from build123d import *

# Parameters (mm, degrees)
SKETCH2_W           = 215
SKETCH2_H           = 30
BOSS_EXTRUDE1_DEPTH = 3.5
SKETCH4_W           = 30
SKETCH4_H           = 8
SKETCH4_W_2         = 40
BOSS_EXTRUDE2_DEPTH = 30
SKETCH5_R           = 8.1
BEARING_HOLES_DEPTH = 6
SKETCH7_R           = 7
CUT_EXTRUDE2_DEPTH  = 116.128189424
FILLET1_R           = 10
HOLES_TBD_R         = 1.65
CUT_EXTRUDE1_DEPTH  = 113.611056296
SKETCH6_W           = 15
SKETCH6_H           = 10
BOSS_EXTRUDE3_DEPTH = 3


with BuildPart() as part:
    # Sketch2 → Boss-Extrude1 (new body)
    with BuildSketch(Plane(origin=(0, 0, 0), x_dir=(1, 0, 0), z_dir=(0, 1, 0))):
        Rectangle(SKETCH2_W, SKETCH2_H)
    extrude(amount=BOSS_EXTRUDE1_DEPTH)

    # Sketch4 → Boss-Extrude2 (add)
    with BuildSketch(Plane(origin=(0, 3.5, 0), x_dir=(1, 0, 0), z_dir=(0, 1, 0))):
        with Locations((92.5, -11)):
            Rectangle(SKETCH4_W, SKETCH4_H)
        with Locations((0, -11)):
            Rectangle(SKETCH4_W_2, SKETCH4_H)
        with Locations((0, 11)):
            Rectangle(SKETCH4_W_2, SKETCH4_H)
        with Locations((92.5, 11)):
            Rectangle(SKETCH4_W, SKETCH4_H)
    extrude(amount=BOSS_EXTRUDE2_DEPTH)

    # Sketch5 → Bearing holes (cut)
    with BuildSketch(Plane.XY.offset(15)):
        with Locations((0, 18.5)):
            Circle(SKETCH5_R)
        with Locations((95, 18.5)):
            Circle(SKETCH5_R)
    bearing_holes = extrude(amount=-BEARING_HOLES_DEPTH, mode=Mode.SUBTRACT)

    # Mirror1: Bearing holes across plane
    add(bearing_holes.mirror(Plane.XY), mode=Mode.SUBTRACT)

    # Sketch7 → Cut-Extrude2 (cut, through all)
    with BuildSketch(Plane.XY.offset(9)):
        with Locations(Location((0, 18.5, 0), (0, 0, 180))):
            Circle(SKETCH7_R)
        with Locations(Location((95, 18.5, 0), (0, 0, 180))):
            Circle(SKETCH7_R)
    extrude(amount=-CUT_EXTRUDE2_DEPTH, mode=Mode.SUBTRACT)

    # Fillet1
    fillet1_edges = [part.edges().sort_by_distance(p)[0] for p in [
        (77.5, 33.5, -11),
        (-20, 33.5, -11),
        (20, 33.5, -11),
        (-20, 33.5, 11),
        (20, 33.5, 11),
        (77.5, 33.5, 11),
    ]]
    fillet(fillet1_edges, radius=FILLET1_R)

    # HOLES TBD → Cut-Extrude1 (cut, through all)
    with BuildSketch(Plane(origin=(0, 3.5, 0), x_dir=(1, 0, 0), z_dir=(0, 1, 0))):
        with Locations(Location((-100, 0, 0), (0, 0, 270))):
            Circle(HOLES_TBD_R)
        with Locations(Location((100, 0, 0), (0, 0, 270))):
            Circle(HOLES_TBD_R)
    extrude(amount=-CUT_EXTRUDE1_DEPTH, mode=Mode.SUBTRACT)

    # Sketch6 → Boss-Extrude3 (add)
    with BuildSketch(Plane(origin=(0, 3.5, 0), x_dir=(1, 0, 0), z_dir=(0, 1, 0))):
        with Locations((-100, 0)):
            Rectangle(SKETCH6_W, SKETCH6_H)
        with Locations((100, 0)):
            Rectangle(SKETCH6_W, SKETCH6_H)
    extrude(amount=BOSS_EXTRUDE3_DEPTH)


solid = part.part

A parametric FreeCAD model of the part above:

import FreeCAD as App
import Part
import Sketcher
from FreeCAD import Vector


def edges_at(feature, points):
    """Names of the edges that pass closest to the given points."""
    edges = feature.Shape.Edges
    near = lambda p: min(range(len(edges)), key=lambda i: edges[i].distToShape(Part.Vertex(*p))[0])
    return sorted({f"Edge{near(p) + 1}" for p in points})

doc = App.newDocument("Part")
body = doc.addObject("PartDesign::Body", "Body")

# Sketch on XZ plane
sketch1 = body.newObject("Sketcher::SketchObject", "Sketch")
sketch1.AttachmentSupport = (doc.getObject("XZ_Plane"), [""])
sketch1.MapMode = "FlatFace"
sketch1.addGeometry([
    Part.LineSegment(Vector(-108, -15, 0), Vector(-108, 15, 0)),
    Part.LineSegment(Vector(-108, 15, 0), Vector(108, 15, 0)),
    Part.LineSegment(Vector(108, 15, 0), Vector(108, -15, 0)),
    Part.LineSegment(Vector(108, -15, 0), Vector(-108, -15, 0)),
], False)
sketch1.addConstraint([
    Sketcher.Constraint("Coincident", 0, 2, 1, 1),
    Sketcher.Constraint("Coincident", 1, 2, 2, 1),
    Sketcher.Constraint("Coincident", 2, 2, 3, 1),
    Sketcher.Constraint("Coincident", 3, 2, 0, 1),
    Sketcher.Constraint("Vertical", 0),
    Sketcher.Constraint("Horizontal", 1),
    Sketcher.Constraint("Vertical", 2),
    Sketcher.Constraint("Horizontal", 3),
    Sketcher.Constraint("Symmetric", 0, 2, 2, 2, -1, 1),
    Sketcher.Constraint("DistanceX", 1, 1, 1, 2, 215.0),
    Sketcher.Constraint("DistanceY", 0, 1, 0, 2, 30.0),
])
pad1 = body.newObject("PartDesign::Pad", "Pad")
pad1.Profile = sketch1
pad1.Length = 3.5
pad1.Reversed = True

# Sketch on XZ plane
sketch2 = body.newObject("Sketcher::SketchObject", "Sketch001")
sketch2.AttachmentSupport = (doc.getObject("XZ_Plane"), [""])
sketch2.MapMode = "FlatFace"
sketch2.AttachmentOffset = App.Placement(Vector(0, 0, -3.5), App.Rotation())
sketch2.addGeometry([
    Part.LineSegment(Vector(78, 7, 0), Vector(78, 15, 0)),  # 0
    Part.LineSegment(Vector(78, 15, 0), Vector(108, 15, 0)),  # 1
    Part.LineSegment(Vector(108, 15, 0), Vector(108, 7, 0)),  # 2
    Part.LineSegment(Vector(108, 7, 0), Vector(78, 7, 0)),  # 3
    Part.LineSegment(Vector(-20, 7, 0), Vector(-20, 15, 0)),  # 4
    Part.LineSegment(Vector(-20, 15, 0), Vector(20, 15, 0)),  # 5
    Part.LineSegment(Vector(20, 15, 0), Vector(20, 7, 0)),  # 6
    Part.LineSegment(Vector(20, 7, 0), Vector(-20, 7, 0)),  # 7
    Part.LineSegment(Vector(-20, -15, 0), Vector(-20, -7, 0)),  # 8
    Part.LineSegment(Vector(-20, -7, 0), Vector(20, -7, 0)),  # 9
    Part.LineSegment(Vector(20, -7, 0), Vector(20, -15, 0)),  # 10
    Part.LineSegment(Vector(20, -15, 0), Vector(-20, -15, 0)),  # 11
    Part.LineSegment(Vector(78, -15, 0), Vector(78, -7, 0)),  # 12
    Part.LineSegment(Vector(78, -7, 0), Vector(108, -7, 0)),  # 13
    Part.LineSegment(Vector(108, -7, 0), Vector(108, -15, 0)),  # 14
    Part.LineSegment(Vector(108, -15, 0), Vector(78, -15, 0)),  # 15
], False)
sketch2.addConstraint([
    Sketcher.Constraint("Coincident", 0, 2, 1, 1),
    Sketcher.Constraint("Coincident", 1, 2, 2, 1),
    Sketcher.Constraint("Coincident", 2, 2, 3, 1),
    Sketcher.Constraint("Coincident", 3, 2, 0, 1),
    Sketcher.Constraint("Coincident", 4, 2, 5, 1),
    Sketcher.Constraint("Coincident", 5, 2, 6, 1),
    Sketcher.Constraint("Coincident", 6, 2, 7, 1),
    Sketcher.Constraint("Coincident", 7, 2, 4, 1),
    Sketcher.Constraint("Coincident", 8, 2, 9, 1),
    Sketcher.Constraint("Coincident", 9, 2, 10, 1),
    Sketcher.Constraint("Coincident", 10, 2, 11, 1),
    Sketcher.Constraint("Coincident", 11, 2, 8, 1),
    Sketcher.Constraint("Coincident", 12, 2, 13, 1),
    Sketcher.Constraint("Coincident", 13, 2, 14, 1),
    Sketcher.Constraint("Coincident", 14, 2, 15, 1),
    Sketcher.Constraint("Coincident", 15, 2, 12, 1),
    Sketcher.Constraint("Vertical", 0),
    Sketcher.Constraint("Horizontal", 1),
    Sketcher.Constraint("Vertical", 2),
    Sketcher.Constraint("Horizontal", 3),
    Sketcher.Constraint("Vertical", 4),
    Sketcher.Constraint("Horizontal", 5),
    Sketcher.Constraint("Vertical", 6),
    Sketcher.Constraint("Horizontal", 7),
    Sketcher.Constraint("Vertical", 8),
    Sketcher.Constraint("Horizontal", 9),
    Sketcher.Constraint("Vertical", 10),
    Sketcher.Constraint("Horizontal", 11),
    Sketcher.Constraint("Vertical", 12),
    Sketcher.Constraint("Horizontal", 13),
    Sketcher.Constraint("Vertical", 14),
    Sketcher.Constraint("Horizontal", 15),
    Sketcher.Constraint("Symmetric", 6, 2, 8, 2, -1, 1),
    Sketcher.Constraint("Symmetric", 4, 2, 10, 2, -1, 1),
    Sketcher.Constraint("Symmetric", 3, 2, 12, 2, -1),
    Sketcher.Constraint("Symmetric", 1, 2, 14, 2, -1),
    Sketcher.Constraint("Horizontal", 1, 2, 4, 2),
    Sketcher.Constraint("Horizontal", 3, 2, 6, 2),
    Sketcher.Constraint("Vertical", 7, 2, 8, 2),
    Sketcher.Constraint("DistanceX", 1, 1, 1, 2, 30.0),
    Sketcher.Constraint("DistanceX", 5, 1, 5, 2, 40.0),
    Sketcher.Constraint("DistanceY", 0, 1, 0, 2, 8.0),
    Sketcher.Constraint("DistanceY", -1, 1, 0, 2, 15.0),
    Sketcher.Constraint("DistanceX", -1, 1, 0, 2, 77.5),
])
pad2 = body.newObject("PartDesign::Pad", "Pad001")
pad2.Profile = sketch2
pad2.Length = 30
pad2.Reversed = True

# Sketch on XY plane
sketch3 = body.newObject("Sketcher::SketchObject", "Sketch002")
sketch3.AttachmentSupport = (doc.getObject("XY_Plane"), [""])
sketch3.MapMode = "FlatFace"
sketch3.AttachmentOffset = App.Placement(Vector(0, 0, 15), App.Rotation())
sketch3.addGeometry([
    Part.Circle(Vector(0, 18, 0), Vector(0, 0, 1), 8),
    Part.Circle(Vector(95, 18, 0), Vector(0, 0, 1), 8),
], False)
sketch3.addConstraint([
    Sketcher.Constraint("Equal", 0, 1),
    Sketcher.Constraint("PointOnObject", 0, 3, -2),
    Sketcher.Constraint("Horizontal", 0, 3, 1, 3),
    Sketcher.Constraint("Diameter", 0, 16.2),
    Sketcher.Constraint("DistanceX", -1, 1, 1, 3, 95.0),
    Sketcher.Constraint("DistanceY", -1, 1, 0, 3, 18.5),
])
pocket1 = body.newObject("PartDesign::Pocket", "Pocket")
pocket1.Profile = sketch3
pocket1.Length = 6
doc.recompute()

mirrored = body.newObject("PartDesign::Mirrored", "Mirrored")
mirrored.Originals = [pocket1]
mirrored.MirrorPlane = (doc.getObject("XY_Plane"), [""])
body.Tip = mirrored

# Sketch on XY plane
sketch4 = body.newObject("Sketcher::SketchObject", "Sketch003")
sketch4.AttachmentSupport = (doc.getObject("XY_Plane"), [""])
sketch4.MapMode = "FlatFace"
sketch4.AttachmentOffset = App.Placement(Vector(0, 0, 9), App.Rotation())
sketch4.addGeometry([
    Part.Circle(Vector(0, 18, 0), Vector(0, 0, 1), 7),
    Part.Circle(Vector(95, 18, 0), Vector(0, 0, 1), 7),
], False)
sketch4.addConstraint([
    Sketcher.Constraint("Equal", 0, 1),
    Sketcher.Constraint("PointOnObject", 0, 3, -2),
    Sketcher.Constraint("Horizontal", 0, 3, 1, 3),
    Sketcher.Constraint("Diameter", 0, 14.0),
    Sketcher.Constraint("DistanceX", -1, 1, 1, 3, 95.0),
    Sketcher.Constraint("DistanceY", -1, 1, 0, 3, 18.5),
])
pocket2 = body.newObject("PartDesign::Pocket", "Pocket001")
pocket2.Profile = sketch4
pocket2.Type = "ThroughAll"
doc.recompute()

fillet = body.newObject("PartDesign::Fillet", "Fillet")
fillet.Base = (pocket2, edges_at(pocket2, [
    (77.5, 33.5, -11),
    (-20, 33.5, -11),
    (20, 33.5, -11),
    (-20, 33.5, 11),
    (20, 33.5, 11),
    (77.5, 33.5, 11),
]))
fillet.Radius = 10

# Sketch on XZ plane
sketch5 = body.newObject("Sketcher::SketchObject", "Sketch004")
sketch5.AttachmentSupport = (doc.getObject("XZ_Plane"), [""])
sketch5.MapMode = "FlatFace"
sketch5.AttachmentOffset = App.Placement(Vector(0, 0, -3.5), App.Rotation())
sketch5.addGeometry([
    Part.Circle(Vector(-100, 0, 0), Vector(0, 0, 1), 1.6),
    Part.Circle(Vector(100, 0, 0), Vector(0, 0, 1), 1.6),
], False)
sketch5.addConstraint([
    Sketcher.Constraint("Equal", 0, 1),
    Sketcher.Constraint("Symmetric", 0, 3, 1, 3, -1, 1),
    Sketcher.Constraint("PointOnObject", 0, 3, -1),
    Sketcher.Constraint("Diameter", 0, 3.3),
    Sketcher.Constraint("DistanceX", 0, 3, -1, 1, 100.0),
])
pocket3 = body.newObject("PartDesign::Pocket", "Pocket002")
pocket3.Profile = sketch5
pocket3.Type = "ThroughAll"
pocket3.Reversed = True

# Sketch on XZ plane
sketch6 = body.newObject("Sketcher::SketchObject", "Sketch005")
sketch6.AttachmentSupport = (doc.getObject("XZ_Plane"), [""])
sketch6.MapMode = "FlatFace"
sketch6.AttachmentOffset = App.Placement(Vector(0, 0, -3.5), App.Rotation())
sketch6.addGeometry([
    Part.LineSegment(Vector(-108, -5, 0), Vector(-108, 5, 0)),  # 0
    Part.LineSegment(Vector(-108, 5, 0), Vector(-92, 5, 0)),  # 1
    Part.LineSegment(Vector(-92, 5, 0), Vector(-92, -5, 0)),  # 2
    Part.LineSegment(Vector(-92, -5, 0), Vector(-108, -5, 0)),  # 3
    Part.LineSegment(Vector(92, -5, 0), Vector(92, 5, 0)),  # 4
    Part.LineSegment(Vector(92, 5, 0), Vector(108, 5, 0)),  # 5
    Part.LineSegment(Vector(108, 5, 0), Vector(108, -5, 0)),  # 6
    Part.LineSegment(Vector(108, -5, 0), Vector(92, -5, 0)),  # 7
], False)
sketch6.addConstraint([
    Sketcher.Constraint("Coincident", 0, 2, 1, 1),
    Sketcher.Constraint("Coincident", 1, 2, 2, 1),
    Sketcher.Constraint("Coincident", 2, 2, 3, 1),
    Sketcher.Constraint("Coincident", 3, 2, 0, 1),
    Sketcher.Constraint("Coincident", 4, 2, 5, 1),
    Sketcher.Constraint("Coincident", 5, 2, 6, 1),
    Sketcher.Constraint("Coincident", 6, 2, 7, 1),
    Sketcher.Constraint("Coincident", 7, 2, 4, 1),
    Sketcher.Constraint("Vertical", 0),
    Sketcher.Constraint("Horizontal", 1),
    Sketcher.Constraint("Vertical", 2),
    Sketcher.Constraint("Horizontal", 3),
    Sketcher.Constraint("Vertical", 4),
    Sketcher.Constraint("Horizontal", 5),
    Sketcher.Constraint("Vertical", 6),
    Sketcher.Constraint("Horizontal", 7),
    Sketcher.Constraint("Symmetric", 2, 2, 4, 2, -1, 1),
    Sketcher.Constraint("Symmetric", 0, 2, 6, 2, -1, 1),
    Sketcher.Constraint("Horizontal", 1, 2, 4, 2),
    Sketcher.Constraint("DistanceX", 1, 1, 1, 2, 15.0),
    Sketcher.Constraint("DistanceY", 0, 1, 0, 2, 10.0),
    Sketcher.Constraint("DistanceX", 1, 2, 4, 2, 185.0),
])
pad3 = body.newObject("PartDesign::Pad", "Pad002")
pad3.Profile = sketch6
pad3.Length = 3
pad3.Reversed = True

doc.recompute()
